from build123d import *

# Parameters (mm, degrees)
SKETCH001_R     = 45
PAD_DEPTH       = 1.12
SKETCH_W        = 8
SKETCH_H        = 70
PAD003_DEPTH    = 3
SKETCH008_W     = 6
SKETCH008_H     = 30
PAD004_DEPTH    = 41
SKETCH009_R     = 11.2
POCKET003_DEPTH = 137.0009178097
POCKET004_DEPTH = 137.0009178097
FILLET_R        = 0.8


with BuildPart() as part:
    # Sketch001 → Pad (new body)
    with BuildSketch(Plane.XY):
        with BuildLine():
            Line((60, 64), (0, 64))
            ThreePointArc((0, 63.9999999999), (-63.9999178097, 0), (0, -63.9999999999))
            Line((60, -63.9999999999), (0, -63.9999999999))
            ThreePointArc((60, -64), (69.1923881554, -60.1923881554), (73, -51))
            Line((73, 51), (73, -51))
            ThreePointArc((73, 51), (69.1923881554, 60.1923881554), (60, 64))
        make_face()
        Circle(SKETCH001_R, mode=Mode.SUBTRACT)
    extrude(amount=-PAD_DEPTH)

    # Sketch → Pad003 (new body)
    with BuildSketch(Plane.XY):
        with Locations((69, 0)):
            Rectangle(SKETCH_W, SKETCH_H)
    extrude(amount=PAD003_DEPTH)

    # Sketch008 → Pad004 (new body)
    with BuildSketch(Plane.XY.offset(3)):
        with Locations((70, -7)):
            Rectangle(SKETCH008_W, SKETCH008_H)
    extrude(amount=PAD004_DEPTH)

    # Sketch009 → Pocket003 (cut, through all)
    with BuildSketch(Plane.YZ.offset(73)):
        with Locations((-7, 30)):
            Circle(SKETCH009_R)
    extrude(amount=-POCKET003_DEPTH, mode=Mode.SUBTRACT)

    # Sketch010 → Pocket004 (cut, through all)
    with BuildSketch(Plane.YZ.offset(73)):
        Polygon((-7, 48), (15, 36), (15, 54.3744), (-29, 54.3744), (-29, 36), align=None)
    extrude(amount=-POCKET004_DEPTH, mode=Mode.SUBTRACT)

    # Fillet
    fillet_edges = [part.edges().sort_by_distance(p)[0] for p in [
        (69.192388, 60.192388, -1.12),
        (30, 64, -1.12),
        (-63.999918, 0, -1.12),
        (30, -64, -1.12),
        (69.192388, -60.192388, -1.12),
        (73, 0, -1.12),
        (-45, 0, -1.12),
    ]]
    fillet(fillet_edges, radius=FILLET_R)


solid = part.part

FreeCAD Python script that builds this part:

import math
import FreeCAD as App
import Part
import Sketcher
from FreeCAD import Vector
Q = App.Units.Quantity


def edges_at(feature, points):
    """Names of the edges that pass closest to the given points."""
    edges = feature.Shape.Edges
    near = lambda p: min(range(len(edges)), key=lambda i: edges[i].distToShape(Part.Vertex(*p))[0])
    return sorted({f"Edge{near(p) + 1}" for p in points})


def add_polygon(sketch, points):
    """Adds a closed chain of lines whose ends are joined by coincident constraints."""
    first, n = sketch.GeometryCount, len(points)
    for a, b in zip(points, points[1:] + points[:1]):
        sketch.addGeometry(Part.LineSegment(App.Vector(*a, 0), App.Vector(*b, 0)), False)
    for i in range(n):
        sketch.addConstraint(Sketcher.Constraint("Coincident", first + i, 2, first + (i + 1) % n, 1))

doc = App.newDocument("Part")
body = doc.addObject("PartDesign::Body", "Body")

# Sketch on XY plane
sketch1 = doc.addObject("Sketcher::SketchObject", "Sketch")
body.addObject(sketch1)
sketch1.AttachmentSupport = (doc.XY_Plane, [""])
sketch1.MapMode = "FlatFace"
sketch1.addGeometry(Part.LineSegment(Vector(60, 64, 0), Vector(0, 64, 0)), False)
sketch1.addGeometry(Part.ArcOfCircle(Part.Circle(Vector(0.000082, 0, 0), Vector(0, 0, 1), 64), math.radians(90.000074), math.radians(269.999926)), False)
sketch1.addGeometry(Part.LineSegment(Vector(0, -64, 0), Vector(60, -64, 0)), False)
sketch1.addGeometry(Part.ArcOfCircle(Part.Circle(Vector(60, -51, 0), Vector(0, 0, 1), 13), math.radians(-90), math.radians(0)), False)
sketch1.addGeometry(Part.LineSegment(Vector(73, -51, 0), Vector(73, 51, 0)), False)
sketch1.addGeometry(Part.ArcOfCircle(Part.Circle(Vector(60, 51, 0), Vector(0, 0, 1), 13), math.radians(0), math.radians(90)), False)
sketch1.addGeometry(Part.Circle(Vector(0, 0, 0), Vector(0, 0, 1), 45), False)
sketch1.addConstraint(Sketcher.Constraint("Coincident", 0, 2, 1, 1))
sketch1.addConstraint(Sketcher.Constraint("Coincident", 1, 2, 2, 1))
sketch1.addConstraint(Sketcher.Constraint("Coincident", 2, 2, 3, 1))
sketch1.addConstraint(Sketcher.Constraint("Coincident", 3, 2, 4, 1))
sketch1.addConstraint(Sketcher.Constraint("Coincident", 4, 2, 5, 1))
sketch1.addConstraint(Sketcher.Constraint("Coincident", 5, 2, 0, 1))
sketch1.addConstraint(Sketcher.Constraint("Horizontal", 0))
sketch1.addConstraint(Sketcher.Constraint("Horizontal", 2))
sketch1.addConstraint(Sketcher.Constraint("Vertical", 4))
sketch1.addConstraint(Sketcher.Constraint("Coincident", 6, 3, -1, 1))
sketch1.addConstraint(Sketcher.Constraint("PointOnObject", 1, 3, -1))
sketch1.addConstraint(Sketcher.Constraint("PointOnObject", 0, 2, -2))
sketch1.addConstraint(Sketcher.Constraint("PointOnObject", 1, 2, -2))
sketch1.addConstraint(Sketcher.Constraint("Diameter", 6, Q("90 mm")))
sketch1.addConstraint(Sketcher.Constraint("Radius", 1, Q("64 mm")))
sketch1.addConstraint(Sketcher.Constraint("Radius", 3, Q("13 mm")))
sketch1.addConstraint(Sketcher.Constraint("Radius", 5, Q("13 mm")))
sketch1.addConstraint(Sketcher.Constraint("DistanceX", 0, 2, 0, 1, Q("60 mm")))
sketch1.addConstraint(Sketcher.Constraint("DistanceX", 2, 1, 2, 2, Q("60 mm")))
sketch1.addConstraint(Sketcher.Constraint("DistanceY", 4, 1, 4, 2, Q("102 mm")))
sketch1.addConstraint(Sketcher.Constraint("DistanceX", -1, 1, 3, 3, Q("60 mm")))
sketch1.addConstraint(Sketcher.Constraint("DistanceY", 3, 2, -1, 1, Q("51 mm")))
sketch1.addConstraint(Sketcher.Constraint("DistanceX", 1, 3, 3, 3, Q("59.999918 mm")))
pad1 = doc.addObject("PartDesign::Pad", "Pad")
body.addObject(pad1)
pad1.Profile = sketch1
pad1.Length = 1.12
pad1.Reversed = True

# Sketch on XY plane
sketch2 = doc.addObject("Sketcher::SketchObject", "Sketch001")
body.addObject(sketch2)
sketch2.AttachmentSupport = (doc.XY_Plane, [""])
sketch2.MapMode = "FlatFace"
add_polygon(sketch2, [(65, 35), (65, -35), (73, -35), (73, 35)])  # lines 0-3
sketch2.addConstraint(Sketcher.Constraint("Vertical", 0))
sketch2.addConstraint(Sketcher.Constraint("Horizontal", 1))
sketch2.addConstraint(Sketcher.Constraint("Vertical", 2))
sketch2.addConstraint(Sketcher.Constraint("Horizontal", 3))
sketch2.addConstraint(Sketcher.Constraint("DistanceX", 1, 1, 1, 2, Q("8 mm")))
sketch2.addConstraint(Sketcher.Constraint("DistanceY", 0, 2, 0, 1, Q("70 mm")))
sketch2.addConstraint(Sketcher.Constraint("DistanceX", -1, 1, 0, 2, Q("65 mm")))
sketch2.addConstraint(Sketcher.Constraint("DistanceY", 0, 2, -1, 1, Q("35 mm")))
pad2 = doc.addObject("PartDesign::Pad", "Pad001")
body.addObject(pad2)
pad2.Profile = sketch2
pad2.Length = 3

# Sketch on XY plane
sketch3 = doc.addObject("Sketcher::SketchObject", "Sketch002")
body.addObject(sketch3)
sketch3.AttachmentSupport = (doc.XY_Plane, [""])
sketch3.MapMode = "FlatFace"
sketch3.AttachmentOffset = App.Placement(Vector(0, 0, 3), App.Rotation())
add_polygon(sketch3, [(67, 8), (67, -22), (73, -22), (73, 8)])  # lines 0-3
sketch3.addConstraint(Sketcher.Constraint("Vertical", 0))
sketch3.addConstraint(Sketcher.Constraint("Horizontal", 1))
sketch3.addConstraint(Sketcher.Constraint("Vertical", 2))
sketch3.addConstraint(Sketcher.Constraint("Horizontal", 3))
sketch3.addConstraint(Sketcher.Constraint("DistanceX", 1, 1, 1, 2, Q("6 mm")))
sketch3.addConstraint(Sketcher.Constraint("DistanceY", 0, 2, 0, 1, Q("30 mm")))
sketch3.addConstraint(Sketcher.Constraint("DistanceX", -1, 1, 0, 2, Q("67 mm")))
sketch3.addConstraint(Sketcher.Constraint("DistanceY", 0, 2, -1, 1, Q("22 mm")))
pad3 = doc.addObject("PartDesign::Pad", "Pad002")
body.addObject(pad3)
pad3.Profile = sketch3
pad3.Length = 41

# Sketch on YZ plane
sketch4 = doc.addObject("Sketcher::SketchObject", "Sketch003")
body.addObject(sketch4)
sketch4.AttachmentSupport = (doc.YZ_Plane, [""])
sketch4.MapMode = "FlatFace"
sketch4.AttachmentOffset = App.Placement(Vector(0, 0, 73), App.Rotation())
sketch4.addGeometry(Part.Circle(Vector(-7, 30, 0), Vector(0, 0, 1), 11.2), False)
sketch4.addConstraint(Sketcher.Constraint("Diameter", 0, Q("22.4 mm")))
sketch4.addConstraint(Sketcher.Constraint("DistanceX", 0, 3, -1, 1, Q("7 mm")))
sketch4.addConstraint(Sketcher.Constraint("DistanceY", -1, 1, 0, 3, Q("30 mm")))
pocket1 = doc.addObject("PartDesign::Pocket", "Pocket")
body.addObject(pocket1)
pocket1.Profile = sketch4
pocket1.Type = "ThroughAll"

# Sketch on YZ plane
sketch5 = doc.addObject("Sketcher::SketchObject", "Sketch004")
body.addObject(sketch5)
sketch5.AttachmentSupport = (doc.YZ_Plane, [""])
sketch5.MapMode = "FlatFace"
sketch5.AttachmentOffset = App.Placement(Vector(0, 0, 73), App.Rotation())
add_polygon(sketch5, [(-7, 48), (15, 36), (15, 54.3744), (-29, 54.3744), (-29, 36)])  # lines 0-4
sketch5.addConstraint(Sketcher.Constraint("Vertical", 1))
sketch5.addConstraint(Sketcher.Constraint("Horizontal", 2))
sketch5.addConstraint(Sketcher.Constraint("Vertical", 3))
sketch5.addConstraint(Sketcher.Constraint("Horizontal", 0, 2, 3, 2))
sketch5.addConstraint(Sketcher.Constraint("Equal", 0, 4))
sketch5.addConstraint(Sketcher.Constraint("DistanceX", 2, 2, 2, 1, Q("44 mm")))
sketch5.addConstraint(Sketcher.Constraint("DistanceX", -1, 1, 0, 2, Q("15 mm")))
sketch5.addConstraint(Sketcher.Constraint("DistanceY", -1, 1, 0, 2, Q("36 mm")))
sketch5.addConstraint(Sketcher.Constraint("DistanceY", -1, 1, 4, 2, Q("48 mm")))
sketch5.addConstraint(Sketcher.Constraint("DistanceY", 1, 1, 1, 2, Q("18.3744 mm")))
pocket2 = doc.addObject("PartDesign::Pocket", "Pocket001")
body.addObject(pocket2)
pocket2.Profile = sketch5
pocket2.Type = "ThroughAll"
doc.recompute()

fillet = doc.addObject("PartDesign::Fillet", "Fillet")
body.addObject(fillet)
fillet.Base = (pocket2, edges_at(pocket2, [
    (69.192, 60.192, -1.12),
    (30, 64, -1.12),
    (-64, 0, -1.12),
    (30, -64, -1.12),
    (69.192, -60.192, -1.12),
    (73, 0, -1.12),
    (-45, 0, -1.12),
]))
fillet.Radius = 0.8

doc.recompute()
